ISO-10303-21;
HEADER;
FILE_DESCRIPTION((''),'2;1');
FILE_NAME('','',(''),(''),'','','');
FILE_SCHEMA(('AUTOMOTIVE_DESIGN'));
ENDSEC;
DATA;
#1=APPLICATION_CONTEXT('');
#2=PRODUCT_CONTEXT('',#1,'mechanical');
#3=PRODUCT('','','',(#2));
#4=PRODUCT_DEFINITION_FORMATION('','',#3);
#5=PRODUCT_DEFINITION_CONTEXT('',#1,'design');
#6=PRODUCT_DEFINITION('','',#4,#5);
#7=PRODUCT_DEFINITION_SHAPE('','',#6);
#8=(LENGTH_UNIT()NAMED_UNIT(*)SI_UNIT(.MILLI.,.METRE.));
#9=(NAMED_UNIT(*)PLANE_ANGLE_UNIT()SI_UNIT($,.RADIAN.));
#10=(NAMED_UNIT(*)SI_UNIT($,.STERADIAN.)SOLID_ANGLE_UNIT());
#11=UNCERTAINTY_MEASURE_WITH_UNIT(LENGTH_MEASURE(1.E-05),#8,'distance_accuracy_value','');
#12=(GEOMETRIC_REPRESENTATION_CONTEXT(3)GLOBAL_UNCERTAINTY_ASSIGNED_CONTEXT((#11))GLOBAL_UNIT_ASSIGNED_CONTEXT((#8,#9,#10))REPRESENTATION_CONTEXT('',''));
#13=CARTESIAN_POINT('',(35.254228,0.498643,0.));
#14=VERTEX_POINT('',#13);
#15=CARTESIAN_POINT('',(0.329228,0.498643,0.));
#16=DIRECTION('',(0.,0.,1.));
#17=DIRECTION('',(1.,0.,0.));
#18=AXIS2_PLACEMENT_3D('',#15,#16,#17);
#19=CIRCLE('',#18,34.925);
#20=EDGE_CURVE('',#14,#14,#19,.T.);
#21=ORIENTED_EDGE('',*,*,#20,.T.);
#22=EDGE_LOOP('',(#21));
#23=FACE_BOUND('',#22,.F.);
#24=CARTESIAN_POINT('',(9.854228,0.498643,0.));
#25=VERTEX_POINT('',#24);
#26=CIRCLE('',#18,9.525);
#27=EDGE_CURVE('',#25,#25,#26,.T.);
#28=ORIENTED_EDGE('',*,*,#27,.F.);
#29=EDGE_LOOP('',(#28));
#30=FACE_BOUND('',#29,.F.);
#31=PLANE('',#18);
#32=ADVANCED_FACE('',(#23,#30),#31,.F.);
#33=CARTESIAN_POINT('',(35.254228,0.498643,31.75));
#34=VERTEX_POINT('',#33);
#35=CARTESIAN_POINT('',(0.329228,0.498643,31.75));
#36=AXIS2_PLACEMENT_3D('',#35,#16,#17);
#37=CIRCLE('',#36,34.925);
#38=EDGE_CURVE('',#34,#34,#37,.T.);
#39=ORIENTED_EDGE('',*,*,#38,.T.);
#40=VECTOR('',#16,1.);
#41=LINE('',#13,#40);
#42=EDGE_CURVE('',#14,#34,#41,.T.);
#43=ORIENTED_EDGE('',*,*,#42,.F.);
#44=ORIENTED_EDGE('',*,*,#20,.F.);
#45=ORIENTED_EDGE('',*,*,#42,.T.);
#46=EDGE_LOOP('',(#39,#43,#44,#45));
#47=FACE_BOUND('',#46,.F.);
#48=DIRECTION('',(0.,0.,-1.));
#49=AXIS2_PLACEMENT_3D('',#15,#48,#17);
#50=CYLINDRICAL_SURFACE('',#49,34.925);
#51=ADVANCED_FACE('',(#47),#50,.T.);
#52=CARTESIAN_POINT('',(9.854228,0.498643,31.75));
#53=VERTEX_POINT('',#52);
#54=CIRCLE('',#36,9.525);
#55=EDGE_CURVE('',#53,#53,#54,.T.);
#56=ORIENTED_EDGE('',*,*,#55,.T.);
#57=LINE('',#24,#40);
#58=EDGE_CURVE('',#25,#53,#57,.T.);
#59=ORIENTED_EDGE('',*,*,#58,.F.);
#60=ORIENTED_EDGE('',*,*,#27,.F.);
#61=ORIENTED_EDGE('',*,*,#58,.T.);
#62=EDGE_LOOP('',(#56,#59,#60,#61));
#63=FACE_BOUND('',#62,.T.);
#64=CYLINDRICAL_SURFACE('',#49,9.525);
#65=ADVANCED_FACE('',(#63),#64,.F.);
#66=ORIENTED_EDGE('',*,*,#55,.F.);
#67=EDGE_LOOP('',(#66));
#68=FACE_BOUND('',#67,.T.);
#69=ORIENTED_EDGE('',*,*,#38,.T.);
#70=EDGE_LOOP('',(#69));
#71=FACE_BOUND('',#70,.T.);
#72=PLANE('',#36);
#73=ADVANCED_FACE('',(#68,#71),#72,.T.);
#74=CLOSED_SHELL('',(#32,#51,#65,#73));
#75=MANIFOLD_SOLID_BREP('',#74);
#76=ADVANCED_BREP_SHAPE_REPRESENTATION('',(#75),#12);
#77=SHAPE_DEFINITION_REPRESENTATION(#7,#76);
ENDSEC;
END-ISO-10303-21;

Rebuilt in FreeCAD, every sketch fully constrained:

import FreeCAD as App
import Part
import Sketcher
Q = App.Units.Quantity

doc = App.newDocument("Part")
body = doc.addObject("PartDesign::Body", "Body")

# Sketch on XY plane
sketch1 = body.newObject("Sketcher::SketchObject", "Sketch")
sketch1.AttachmentSupport = (doc.getObject("XY_Plane"), [""])
sketch1.MapMode = "FlatFace"
sketch1.addGeometry([
    Part.Circle(App.Vector(0, 0, 0), App.Vector(0, 0, 1), 35),
    Part.Circle(App.Vector(0, 0, 0), App.Vector(0, 0, 1), 10),
], False)
sketch1.addConstraint([
    Sketcher.Constraint("Coincident", 1, 3, 0, 3),
    Sketcher.Constraint("Diameter", 0, Q("2.75 in")),
    Sketcher.Constraint("Diameter", 1, Q("0.75 in")),
    Sketcher.Constraint("DistanceX", -1, 1, 0, 3, 0.329228),
    Sketcher.Constraint("DistanceY", -1, 1, 0, 3, 0.498643),
])
pad1 = body.newObject("PartDesign::Pad", "Pad")
pad1.Profile = sketch1
pad1.Length = Q("1.25 in")

doc.recompute()
